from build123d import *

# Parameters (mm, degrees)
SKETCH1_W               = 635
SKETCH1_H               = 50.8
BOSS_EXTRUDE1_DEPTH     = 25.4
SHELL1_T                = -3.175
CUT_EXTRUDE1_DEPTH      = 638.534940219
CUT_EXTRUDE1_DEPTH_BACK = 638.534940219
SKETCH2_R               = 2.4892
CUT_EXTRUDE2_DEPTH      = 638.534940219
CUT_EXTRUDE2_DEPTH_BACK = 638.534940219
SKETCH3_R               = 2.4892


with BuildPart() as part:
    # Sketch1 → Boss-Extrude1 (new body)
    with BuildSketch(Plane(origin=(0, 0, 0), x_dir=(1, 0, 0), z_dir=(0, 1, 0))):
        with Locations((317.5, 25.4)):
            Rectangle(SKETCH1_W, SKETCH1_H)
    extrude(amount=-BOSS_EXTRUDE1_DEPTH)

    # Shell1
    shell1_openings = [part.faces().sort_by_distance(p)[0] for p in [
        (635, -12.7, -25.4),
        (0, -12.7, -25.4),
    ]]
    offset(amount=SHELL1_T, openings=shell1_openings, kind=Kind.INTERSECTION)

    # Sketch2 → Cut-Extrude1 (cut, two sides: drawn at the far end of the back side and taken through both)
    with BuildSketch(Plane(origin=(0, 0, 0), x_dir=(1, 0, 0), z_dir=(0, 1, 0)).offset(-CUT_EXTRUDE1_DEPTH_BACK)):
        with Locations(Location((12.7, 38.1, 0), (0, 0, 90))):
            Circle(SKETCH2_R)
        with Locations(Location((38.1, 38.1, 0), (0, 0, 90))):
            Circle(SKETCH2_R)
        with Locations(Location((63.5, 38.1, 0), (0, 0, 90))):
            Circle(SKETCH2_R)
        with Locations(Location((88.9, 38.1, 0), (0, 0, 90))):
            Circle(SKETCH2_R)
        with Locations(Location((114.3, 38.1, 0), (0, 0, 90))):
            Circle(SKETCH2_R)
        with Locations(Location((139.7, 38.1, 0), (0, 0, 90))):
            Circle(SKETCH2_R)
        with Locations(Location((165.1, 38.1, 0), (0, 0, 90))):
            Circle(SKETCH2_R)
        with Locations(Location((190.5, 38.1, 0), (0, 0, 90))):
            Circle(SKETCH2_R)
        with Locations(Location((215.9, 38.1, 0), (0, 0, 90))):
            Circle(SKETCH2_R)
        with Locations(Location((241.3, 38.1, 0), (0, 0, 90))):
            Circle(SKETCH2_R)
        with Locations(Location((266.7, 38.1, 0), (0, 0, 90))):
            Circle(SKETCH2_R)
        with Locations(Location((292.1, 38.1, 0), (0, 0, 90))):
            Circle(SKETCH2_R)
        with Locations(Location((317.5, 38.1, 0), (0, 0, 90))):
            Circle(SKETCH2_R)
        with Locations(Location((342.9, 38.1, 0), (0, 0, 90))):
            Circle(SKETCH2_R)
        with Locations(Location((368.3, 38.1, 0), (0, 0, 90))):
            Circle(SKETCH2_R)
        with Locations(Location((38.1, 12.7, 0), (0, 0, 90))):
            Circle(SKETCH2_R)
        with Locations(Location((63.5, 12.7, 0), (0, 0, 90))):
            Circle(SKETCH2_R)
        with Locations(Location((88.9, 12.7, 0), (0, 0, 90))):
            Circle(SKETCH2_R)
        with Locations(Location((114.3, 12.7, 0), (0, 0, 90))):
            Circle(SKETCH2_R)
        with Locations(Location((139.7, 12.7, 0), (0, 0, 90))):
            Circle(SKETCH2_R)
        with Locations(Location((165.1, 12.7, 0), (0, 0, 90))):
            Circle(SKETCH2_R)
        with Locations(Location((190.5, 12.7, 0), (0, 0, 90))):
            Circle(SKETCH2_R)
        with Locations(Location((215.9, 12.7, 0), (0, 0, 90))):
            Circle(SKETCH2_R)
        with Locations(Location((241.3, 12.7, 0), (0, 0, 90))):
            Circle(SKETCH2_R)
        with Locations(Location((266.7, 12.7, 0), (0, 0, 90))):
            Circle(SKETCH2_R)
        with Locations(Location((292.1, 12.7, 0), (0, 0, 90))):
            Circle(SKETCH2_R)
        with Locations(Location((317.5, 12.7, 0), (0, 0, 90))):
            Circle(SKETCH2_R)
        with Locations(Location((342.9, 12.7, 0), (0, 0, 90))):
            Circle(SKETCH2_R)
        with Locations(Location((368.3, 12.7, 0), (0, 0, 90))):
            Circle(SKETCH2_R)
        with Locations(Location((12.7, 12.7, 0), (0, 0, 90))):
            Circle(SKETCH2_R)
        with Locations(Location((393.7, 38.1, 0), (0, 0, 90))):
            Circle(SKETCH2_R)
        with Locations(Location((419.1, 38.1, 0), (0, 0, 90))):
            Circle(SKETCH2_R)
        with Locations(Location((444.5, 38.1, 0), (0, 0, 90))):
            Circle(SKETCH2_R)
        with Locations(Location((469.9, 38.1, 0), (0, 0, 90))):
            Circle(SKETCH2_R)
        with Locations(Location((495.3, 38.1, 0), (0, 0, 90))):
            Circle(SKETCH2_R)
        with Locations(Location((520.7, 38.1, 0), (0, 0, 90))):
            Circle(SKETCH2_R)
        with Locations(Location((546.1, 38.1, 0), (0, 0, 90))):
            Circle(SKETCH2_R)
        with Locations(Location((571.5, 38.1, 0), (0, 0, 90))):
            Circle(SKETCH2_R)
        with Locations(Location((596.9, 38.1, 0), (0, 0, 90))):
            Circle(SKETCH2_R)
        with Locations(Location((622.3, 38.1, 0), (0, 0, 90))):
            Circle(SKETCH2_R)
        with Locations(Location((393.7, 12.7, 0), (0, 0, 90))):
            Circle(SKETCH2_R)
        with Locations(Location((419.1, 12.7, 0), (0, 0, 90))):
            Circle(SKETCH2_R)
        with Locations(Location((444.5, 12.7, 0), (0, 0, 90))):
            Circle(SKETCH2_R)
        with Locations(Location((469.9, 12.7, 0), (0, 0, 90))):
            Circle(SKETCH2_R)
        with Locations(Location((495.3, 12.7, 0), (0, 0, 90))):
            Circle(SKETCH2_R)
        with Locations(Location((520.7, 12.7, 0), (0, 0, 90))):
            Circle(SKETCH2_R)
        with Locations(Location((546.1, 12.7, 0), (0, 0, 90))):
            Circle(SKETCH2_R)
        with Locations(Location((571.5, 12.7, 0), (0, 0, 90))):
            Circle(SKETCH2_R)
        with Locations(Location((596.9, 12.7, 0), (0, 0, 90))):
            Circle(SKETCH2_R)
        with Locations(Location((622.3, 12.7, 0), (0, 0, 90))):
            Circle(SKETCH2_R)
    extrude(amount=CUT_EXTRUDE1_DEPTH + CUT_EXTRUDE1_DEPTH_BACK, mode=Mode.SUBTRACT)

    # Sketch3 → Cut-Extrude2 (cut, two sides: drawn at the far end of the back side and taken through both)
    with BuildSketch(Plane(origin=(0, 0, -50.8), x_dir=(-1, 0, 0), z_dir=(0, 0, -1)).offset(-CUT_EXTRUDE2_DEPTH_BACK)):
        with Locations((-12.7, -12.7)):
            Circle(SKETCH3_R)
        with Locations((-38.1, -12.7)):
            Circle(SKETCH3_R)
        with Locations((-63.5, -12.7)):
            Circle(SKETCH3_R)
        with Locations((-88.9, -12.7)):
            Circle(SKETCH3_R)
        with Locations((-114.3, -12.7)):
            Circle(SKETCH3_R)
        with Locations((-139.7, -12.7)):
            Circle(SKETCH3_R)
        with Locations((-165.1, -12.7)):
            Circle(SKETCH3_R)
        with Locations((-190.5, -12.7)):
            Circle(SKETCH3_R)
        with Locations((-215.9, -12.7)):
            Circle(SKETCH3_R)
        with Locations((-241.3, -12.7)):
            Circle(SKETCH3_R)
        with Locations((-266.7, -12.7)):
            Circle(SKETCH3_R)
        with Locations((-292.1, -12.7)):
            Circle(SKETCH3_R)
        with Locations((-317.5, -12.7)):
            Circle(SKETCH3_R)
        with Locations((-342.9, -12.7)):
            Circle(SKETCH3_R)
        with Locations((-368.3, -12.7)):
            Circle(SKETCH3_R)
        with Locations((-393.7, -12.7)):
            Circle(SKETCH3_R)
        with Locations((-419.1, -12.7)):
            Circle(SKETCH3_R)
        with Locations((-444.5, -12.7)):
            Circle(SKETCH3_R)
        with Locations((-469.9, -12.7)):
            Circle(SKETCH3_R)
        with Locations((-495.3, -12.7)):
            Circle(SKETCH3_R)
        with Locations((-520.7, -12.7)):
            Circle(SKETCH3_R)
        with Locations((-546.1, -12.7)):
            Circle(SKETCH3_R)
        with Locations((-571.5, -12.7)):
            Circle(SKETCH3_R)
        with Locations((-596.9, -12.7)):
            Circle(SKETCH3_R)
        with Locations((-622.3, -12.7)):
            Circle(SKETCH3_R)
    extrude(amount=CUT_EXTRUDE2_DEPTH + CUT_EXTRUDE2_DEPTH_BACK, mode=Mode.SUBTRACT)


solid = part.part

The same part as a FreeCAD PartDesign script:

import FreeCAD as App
import Part
import Sketcher
from FreeCAD import Vector
Q = App.Units.Quantity


def faces_at(feature, points):
    """Names of the faces that lie closest to the given points."""
    faces = feature.Shape.Faces
    near = lambda p: min(range(len(faces)), key=lambda i: faces[i].distToShape(Part.Vertex(*p))[0])
    return sorted({f"Face{near(p) + 1}" for p in points})


def add_polygon(sketch, points):
    """Adds a closed chain of lines whose ends are joined by coincident constraints."""
    first, n = sketch.GeometryCount, len(points)
    for a, b in zip(points, points[1:] + points[:1]):
        sketch.addGeometry(Part.LineSegment(App.Vector(*a, 0), App.Vector(*b, 0)), False)
    for i in range(n):
        sketch.addConstraint(Sketcher.Constraint("Coincident", first + i, 2, first + (i + 1) % n, 1))

doc = App.newDocument("Part")
body = doc.addObject("PartDesign::Body", "Body")

# Sketch on XZ plane
sketch1 = body.newObject("Sketcher::SketchObject", "Sketch")
sketch1.AttachmentSupport = (doc.getObject("XZ_Plane"), [""])
sketch1.MapMode = "FlatFace"
add_polygon(sketch1, [(0, -51), (0, 0), (635, 0), (635, -51)])  # lines 0-3
sketch1.addConstraint([
    Sketcher.Constraint("Vertical", 0),
    Sketcher.Constraint("Horizontal", 1),
    Sketcher.Constraint("Vertical", 2),
    Sketcher.Constraint("Horizontal", 3),
    Sketcher.Constraint("Coincident", 0, 2, -1, 1),
    Sketcher.Constraint("DistanceX", 1, 1, 1, 2, Q("25 in")),
    Sketcher.Constraint("DistanceY", 0, 1, 0, 2, Q("2 in")),
])
pad1 = body.newObject("PartDesign::Pad", "Pad")
pad1.Profile = sketch1
pad1.Length = Q("1 in")
doc.recompute()

thickness = body.newObject("PartDesign::Thickness", "Thickness")
thickness.Base = (pad1, faces_at(pad1, [(635, -12.7, -25.4), (0, -12.7, -25.4)]))
thickness.Value = Q("0.125 in")
thickness.Reversed = True
thickness.Join = "Intersection"

# Sketch on XZ plane
sketch2 = body.newObject("Sketcher::SketchObject", "Sketch001")
sketch2.AttachmentSupport = (doc.getObject("XZ_Plane"), [""])
sketch2.MapMode = "FlatFace"
sketch2.addGeometry([
    Part.Circle(Vector(12.7, -38.1, 0), Vector(0, 0, 1), 2.5),  # 0
    Part.Circle(Vector(38.1, -38.1, 0), Vector(0, 0, 1), 2.5),  # 1
    Part.Circle(Vector(63.5, -38.1, 0), Vector(0, 0, 1), 2.5),  # 2
    Part.Circle(Vector(88.9, -38.1, 0), Vector(0, 0, 1), 2.5),  # 3
    Part.Circle(Vector(114.3, -38.1, 0), Vector(0, 0, 1), 2.5),  # 4
    Part.Circle(Vector(139.7, -38.1, 0), Vector(0, 0, 1), 2.5),  # 5
    Part.Circle(Vector(165.1, -38.1, 0), Vector(0, 0, 1), 2.5),  # 6
    Part.Circle(Vector(190.5, -38.1, 0), Vector(0, 0, 1), 2.5),  # 7
    Part.Circle(Vector(215.9, -38.1, 0), Vector(0, 0, 1), 2.5),  # 8
    Part.Circle(Vector(241.3, -38.1, 0), Vector(0, 0, 1), 2.5),  # 9
    Part.Circle(Vector(266.7, -38.1, 0), Vector(0, 0, 1), 2.5),  # 10
    Part.Circle(Vector(292.1, -38.1, 0), Vector(0, 0, 1), 2.5),  # 11
    Part.Circle(Vector(317.5, -38.1, 0), Vector(0, 0, 1), 2.5),  # 12
    Part.Circle(Vector(342.9, -38.1, 0), Vector(0, 0, 1), 2.5),  # 13
    Part.Circle(Vector(368.3, -38.1, 0), Vector(0, 0, 1), 2.5),  # 14
    Part.Circle(Vector(38.1, -12.7, 0), Vector(0, 0, 1), 2.5),  # 15
    Part.Circle(Vector(63.5, -12.7, 0), Vector(0, 0, 1), 2.5),  # 16
    Part.Circle(Vector(88.9, -12.7, 0), Vector(0, 0, 1), 2.5),  # 17
    Part.Circle(Vector(114.3, -12.7, 0), Vector(0, 0, 1), 2.5),  # 18
    Part.Circle(Vector(139.7, -12.7, 0), Vector(0, 0, 1), 2.5),  # 19
    Part.Circle(Vector(165.1, -12.7, 0), Vector(0, 0, 1), 2.5),  # 20
    Part.Circle(Vector(190.5, -12.7, 0), Vector(0, 0, 1), 2.5),  # 21
    Part.Circle(Vector(215.9, -12.7, 0), Vector(0, 0, 1), 2.5),  # 22
    Part.Circle(Vector(241.3, -12.7, 0), Vector(0, 0, 1), 2.5),  # 23
    Part.Circle(Vector(266.7, -12.7, 0), Vector(0, 0, 1), 2.5),  # 24
    Part.Circle(Vector(292.1, -12.7, 0), Vector(0, 0, 1), 2.5),  # 25
    Part.Circle(Vector(317.5, -12.7, 0), Vector(0, 0, 1), 2.5),  # 26
    Part.Circle(Vector(342.9, -12.7, 0), Vector(0, 0, 1), 2.5),  # 27
    Part.Circle(Vector(368.3, -12.7, 0), Vector(0, 0, 1), 2.5),  # 28
    Part.Circle(Vector(12.7, -12.7, 0), Vector(0, 0, 1), 2.5),  # 29
    Part.Circle(Vector(393.7, -38.1, 0), Vector(0, 0, 1), 2.5),  # 30
    Part.Circle(Vector(419.1, -38.1, 0), Vector(0, 0, 1), 2.5),  # 31
    Part.Circle(Vector(444.5, -38.1, 0), Vector(0, 0, 1), 2.5),  # 32
    Part.Circle(Vector(469.9, -38.1, 0), Vector(0, 0, 1), 2.5),  # 33
    Part.Circle(Vector(495.3, -38.1, 0), Vector(0, 0, 1), 2.5),  # 34
    Part.Circle(Vector(520.7, -38.1, 0), Vector(0, 0, 1), 2.5),  # 35
    Part.Circle(Vector(546.1, -38.1, 0), Vector(0, 0, 1), 2.5),  # 36
    Part.Circle(Vector(571.5, -38.1, 0), Vector(0, 0, 1), 2.5),  # 37
    Part.Circle(Vector(596.9, -38.1, 0), Vector(0, 0, 1), 2.5),  # 38
    Part.Circle(Vector(622.3, -38.1, 0), Vector(0, 0, 1), 2.5),  # 39
    Part.Circle(Vector(393.7, -12.7, 0), Vector(0, 0, 1), 2.5),  # 40
    Part.Circle(Vector(419.1, -12.7, 0), Vector(0, 0, 1), 2.5),  # 41
    Part.Circle(Vector(444.5, -12.7, 0), Vector(0, 0, 1), 2.5),  # 42
    Part.Circle(Vector(469.9, -12.7, 0), Vector(0, 0, 1), 2.5),  # 43
    Part.Circle(Vector(495.3, -12.7, 0), Vector(0, 0, 1), 2.5),  # 44
    Part.Circle(Vector(520.7, -12.7, 0), Vector(0, 0, 1), 2.5),  # 45
    Part.Circle(Vector(546.1, -12.7, 0), Vector(0, 0, 1), 2.5),  # 46
    Part.Circle(Vector(571.5, -12.7, 0), Vector(0, 0, 1), 2.5),  # 47
    Part.Circle(Vector(596.9, -12.7, 0), Vector(0, 0, 1), 2.5),  # 48
    Part.Circle(Vector(622.3, -12.7, 0), Vector(0, 0, 1), 2.5),  # 49
], False)
sketch2.addConstraint([
    Sketcher.Constraint("Equal", 0, 1),
    Sketcher.Constraint("Equal", 1, 2),
    Sketcher.Constraint("Equal", 2, 3),
    Sketcher.Constraint("Equal", 3, 4),
    Sketcher.Constraint("Equal", 4, 5),
    Sketcher.Constraint("Equal", 5, 6),
    Sketcher.Constraint("Equal", 6, 7),
    Sketcher.Constraint("Equal", 7, 8),
    Sketcher.Constraint("Equal", 8, 9),
    Sketcher.Constraint("Equal", 9, 10),
    Sketcher.Constraint("Equal", 10, 11),
    Sketcher.Constraint("Equal", 11, 12),
    Sketcher.Constraint("Equal", 12, 13),
    Sketcher.Constraint("Equal", 13, 14),
    Sketcher.Constraint("Equal", 14, 15),
    Sketcher.Constraint("Equal", 15, 16),
    Sketcher.Constraint("Equal", 16, 17),
    Sketcher.Constraint("Equal", 17, 18),
    Sketcher.Constraint("Equal", 18, 19),
    Sketcher.Constraint("Equal", 19, 20),
    Sketcher.Constraint("Equal", 20, 21),
    Sketcher.Constraint("Equal", 21, 22),
    Sketcher.Constraint("Equal", 22, 23),
    Sketcher.Constraint("Equal", 23, 24),
    Sketcher.Constraint("Equal", 24, 25),
    Sketcher.Constraint("Equal", 25, 26),
    Sketcher.Constraint("Equal", 26, 27),
    Sketcher.Constraint("Equal", 27, 28),
    Sketcher.Constraint("Equal", 28, 29),
    Sketcher.Constraint("Equal", 29, 30),
    Sketcher.Constraint("Equal", 30, 31),
    Sketcher.Constraint("Equal", 31, 32),
    Sketcher.Constraint("Equal", 32, 33),
    Sketcher.Constraint("Equal", 33, 34),
    Sketcher.Constraint("Equal", 34, 35),
    Sketcher.Constraint("Equal", 35, 36),
    Sketcher.Constraint("Equal", 36, 37),
    Sketcher.Constraint("Equal", 37, 38),
    Sketcher.Constraint("Equal", 38, 39),
    Sketcher.Constraint("Equal", 39, 40),
    Sketcher.Constraint("Equal", 40, 41),
    Sketcher.Constraint("Equal", 41, 42),
    Sketcher.Constraint("Equal", 42, 43),
    Sketcher.Constraint("Equal", 43, 44),
    Sketcher.Constraint("Equal", 44, 45),
    Sketcher.Constraint("Equal", 45, 46),
    Sketcher.Constraint("Equal", 46, 47),
    Sketcher.Constraint("Equal", 47, 48),
    Sketcher.Constraint("Equal", 48, 49),
    Sketcher.Constraint("Horizontal", 0, 3, 1, 3),
    Sketcher.Constraint("Horizontal", 1, 3, 2, 3),
    Sketcher.Constraint("Horizontal", 2, 3, 3, 3),
    Sketcher.Constraint("Horizontal", 3, 3, 4, 3),
    Sketcher.Constraint("Horizontal", 4, 3, 5, 3),
    Sketcher.Constraint("Horizontal", 5, 3, 6, 3),
    Sketcher.Constraint("Horizontal", 6, 3, 7, 3),
    Sketcher.Constraint("Horizontal", 7, 3, 8, 3),
    Sketcher.Constraint("Horizontal", 8, 3, 9, 3),
    Sketcher.Constraint("Horizontal", 9, 3, 10, 3),
    Sketcher.Constraint("Horizontal", 10, 3, 11, 3),
    Sketcher.Constraint("Horizontal", 11, 3, 12, 3),
    Sketcher.Constraint("Horizontal", 12, 3, 13, 3),
    Sketcher.Constraint("Horizontal", 13, 3, 14, 3),
    Sketcher.Constraint("Horizontal", 15, 3, 16, 3),
    Sketcher.Constraint("Horizontal", 16, 3, 17, 3),
    Sketcher.Constraint("Horizontal", 17, 3, 18, 3),
    Sketcher.Constraint("Horizontal", 18, 3, 19, 3),
    Sketcher.Constraint("Horizontal", 19, 3, 20, 3),
    Sketcher.Constraint("Horizontal", 20, 3, 21, 3),
    Sketcher.Constraint("Horizontal", 21, 3, 22, 3),
    Sketcher.Constraint("Horizontal", 22, 3, 23, 3),
    Sketcher.Constraint("Horizontal", 23, 3, 24, 3),
    Sketcher.Constraint("Horizontal", 24, 3, 25, 3),
    Sketcher.Constraint("Horizontal", 25, 3, 26, 3),
    Sketcher.Constraint("Horizontal", 26, 3, 27, 3),
    Sketcher.Constraint("Horizontal", 27, 3, 28, 3),
    Sketcher.Constraint("Horizontal", 28, 3, 29, 3),
    Sketcher.Constraint("Horizontal", 14, 3, 30, 3),
    Sketcher.Constraint("Horizontal", 30, 3, 31, 3),
    Sketcher.Constraint("Horizontal", 31, 3, 32, 3),
    Sketcher.Constraint("Horizontal", 32, 3, 33, 3),
    Sketcher.Constraint("Horizontal", 33, 3, 34, 3),
    Sketcher.Constraint("Horizontal", 34, 3, 35, 3),
    Sketcher.Constraint("Horizontal", 35, 3, 36, 3),
    Sketcher.Constraint("Horizontal", 36, 3, 37, 3),
    Sketcher.Constraint("Horizontal", 37, 3, 38, 3),
    Sketcher.Constraint("Horizontal", 38, 3, 39, 3),
    Sketcher.Constraint("Horizontal", 29, 3, 40, 3),
    Sketcher.Constraint("Horizontal", 40, 3, 41, 3),
    Sketcher.Constraint("Horizontal", 41, 3, 42, 3),
    Sketcher.Constraint("Horizontal", 42, 3, 43, 3),
    Sketcher.Constraint("Horizontal", 43, 3, 44, 3),
    Sketcher.Constraint("Horizontal", 44, 3, 45, 3),
    Sketcher.Constraint("Horizontal", 45, 3, 46, 3),
    Sketcher.Constraint("Horizontal", 46, 3, 47, 3),
    Sketcher.Constraint("Horizontal", 47, 3, 48, 3),
    Sketcher.Constraint("Horizontal", 48, 3, 49, 3),
    Sketcher.Constraint("Vertical", 1, 3, 15, 3),
    Sketcher.Constraint("Vertical", 2, 3, 16, 3),
    Sketcher.Constraint("Vertical", 3, 3, 17, 3),
    Sketcher.Constraint("Vertical", 4, 3, 18, 3),
    Sketcher.Constraint("Vertical", 5, 3, 19, 3),
    Sketcher.Constraint("Vertical", 6, 3, 20, 3),
    Sketcher.Constraint("Vertical", 7, 3, 21, 3),
    Sketcher.Constraint("Vertical", 8, 3, 22, 3),
    Sketcher.Constraint("Vertical", 9, 3, 23, 3),
    Sketcher.Constraint("Vertical", 10, 3, 24, 3),
    Sketcher.Constraint("Vertical", 11, 3, 25, 3),
    Sketcher.Constraint("Vertical", 12, 3, 26, 3),
    Sketcher.Constraint("Vertical", 13, 3, 27, 3),
    Sketcher.Constraint("Vertical", 14, 3, 28, 3),
    Sketcher.Constraint("Vertical", 0, 3, 29, 3),
    Sketcher.Constraint("Vertical", 30, 3, 40, 3),
    Sketcher.Constraint("Vertical", 31, 3, 41, 3),
    Sketcher.Constraint("Vertical", 32, 3, 42, 3),
    Sketcher.Constraint("Vertical", 33, 3, 43, 3),
    Sketcher.Constraint("Vertical", 34, 3, 44, 3),
    Sketcher.Constraint("Vertical", 35, 3, 45, 3),
    Sketcher.Constraint("Vertical", 36, 3, 46, 3),
    Sketcher.Constraint("Vertical", 37, 3, 47, 3),
    Sketcher.Constraint("Vertical", 38, 3, 48, 3),
    Sketcher.Constraint("Vertical", 39, 3, 49, 3),
    Sketcher.Constraint("Diameter", 0, Q("0.196 in")),
    Sketcher.Constraint("DistanceX", 0, 3, 1, 3, Q("1 in")),
    Sketcher.Constraint("DistanceX", 1, 3, 2, 3, Q("1 in")),
    Sketcher.Constraint("DistanceX", 2, 3, 3, 3, Q("1 in")),
    Sketcher.Constraint("DistanceX", 3, 3, 4, 3, Q("1 in")),
    Sketcher.Constraint("DistanceX", 4, 3, 5, 3, Q("1 in")),
    Sketcher.Constraint("DistanceX", 5, 3, 6, 3, Q("1 in")),
    Sketcher.Constraint("DistanceX", 6, 3, 7, 3, Q("1 in")),
    Sketcher.Constraint("DistanceX", 7, 3, 8, 3, Q("1 in")),
    Sketcher.Constraint("DistanceX", 8, 3, 9, 3, Q("1 in")),
    Sketcher.Constraint("DistanceX", 9, 3, 10, 3, Q("1 in")),
    Sketcher.Constraint("DistanceX", 10, 3, 11, 3, Q("1 in")),
    Sketcher.Constraint("DistanceX", 11, 3, 12, 3, Q("1 in")),
    Sketcher.Constraint("DistanceX", 12, 3, 13, 3, Q("1 in")),
    Sketcher.Constraint("DistanceX", 13, 3, 14, 3, Q("1 in")),
    Sketcher.Constraint("DistanceY", 1, 3, 15, 3, Q("1 in")),
    Sketcher.Constraint("DistanceX", 14, 3, 30, 3, Q("1 in")),
    Sketcher.Constraint("DistanceX", 30, 3, 31, 3, Q("1 in")),
    Sketcher.Constraint("DistanceX", 31, 3, 32, 3, Q("1 in")),
    Sketcher.Constraint("DistanceX", 32, 3, 33, 3, Q("1 in")),
    Sketcher.Constraint("DistanceX", 33, 3, 34, 3, Q("1 in")),
    Sketcher.Constraint("DistanceX", 34, 3, 35, 3, Q("1 in")),
    Sketcher.Constraint("DistanceX", 35, 3, 36, 3, Q("1 in")),
    Sketcher.Constraint("DistanceX", 36, 3, 37, 3, Q("1 in")),
    Sketcher.Constraint("DistanceX", 37, 3, 38, 3, Q("1 in")),
    Sketcher.Constraint("DistanceX", 38, 3, 39, 3, Q("1 in")),
    Sketcher.Constraint("DistanceX", -1, 1, 0, 3, Q("0.5 in")),
    Sketcher.Constraint("DistanceY", 0, 3, -1, 1, Q("1.5 in")),
])
pocket1 = body.newObject("PartDesign::Pocket", "Pocket")
pocket1.Profile = sketch2
pocket1.Type = "ThroughAll"
pocket1.Midplane = True

# Sketch on XY plane
sketch3 = body.newObject("Sketcher::SketchObject", "Sketch002")
sketch3.AttachmentSupport = (doc.getObject("XY_Plane"), [""])
sketch3.MapMode = "FlatFace"
sketch3.AttachmentOffset = App.Placement(Vector(0, 0, -2 * 25.4), App.Rotation())
sketch3.addGeometry([
    Part.Circle(Vector(12.7, -12.7, 0), Vector(0, 0, 1), 2.5),  # 0
    Part.Circle(Vector(38.1, -12.7, 0), Vector(0, 0, 1), 2.5),  # 1
    Part.Circle(Vector(63.5, -12.7, 0), Vector(0, 0, 1), 2.5),  # 2
    Part.Circle(Vector(88.9, -12.7, 0), Vector(0, 0, 1), 2.5),  # 3
    Part.Circle(Vector(114.3, -12.7, 0), Vector(0, 0, 1), 2.5),  # 4
    Part.Circle(Vector(139.7, -12.7, 0), Vector(0, 0, 1), 2.5),  # 5
    Part.Circle(Vector(165.1, -12.7, 0), Vector(0, 0, 1), 2.5),  # 6
    Part.Circle(Vector(190.5, -12.7, 0), Vector(0, 0, 1), 2.5),  # 7
    Part.Circle(Vector(215.9, -12.7, 0), Vector(0, 0, 1), 2.5),  # 8
    Part.Circle(Vector(241.3, -12.7, 0), Vector(0, 0, 1), 2.5),  # 9
    Part.Circle(Vector(266.7, -12.7, 0), Vector(0, 0, 1), 2.5),  # 10
    Part.Circle(Vector(292.1, -12.7, 0), Vector(0, 0, 1), 2.5),  # 11
    Part.Circle(Vector(317.5, -12.7, 0), Vector(0, 0, 1), 2.5),  # 12
    Part.Circle(Vector(342.9, -12.7, 0), Vector(0, 0, 1), 2.5),  # 13
    Part.Circle(Vector(368.3, -12.7, 0), Vector(0, 0, 1), 2.5),  # 14
    Part.Circle(Vector(393.7, -12.7, 0), Vector(0, 0, 1), 2.5),  # 15
    Part.Circle(Vector(419.1, -12.7, 0), Vector(0, 0, 1), 2.5),  # 16
    Part.Circle(Vector(444.5, -12.7, 0), Vector(0, 0, 1), 2.5),  # 17
    Part.Circle(Vector(469.9, -12.7, 0), Vector(0, 0, 1), 2.5),  # 18
    Part.Circle(Vector(495.3, -12.7, 0), Vector(0, 0, 1), 2.5),  # 19
    Part.Circle(Vector(520.7, -12.7, 0), Vector(0, 0, 1), 2.5),  # 20
    Part.Circle(Vector(546.1, -12.7, 0), Vector(0, 0, 1), 2.5),  # 21
    Part.Circle(Vector(571.5, -12.7, 0), Vector(0, 0, 1), 2.5),  # 22
    Part.Circle(Vector(596.9, -12.7, 0), Vector(0, 0, 1), 2.5),  # 23
    Part.Circle(Vector(622.3, -12.7, 0), Vector(0, 0, 1), 2.5),  # 24
], False)
sketch3.addConstraint([
    Sketcher.Constraint("Equal", 0, 1),
    Sketcher.Constraint("Equal", 1, 2),
    Sketcher.Constraint("Equal", 2, 3),
    Sketcher.Constraint("Equal", 3, 4),
    Sketcher.Constraint("Equal", 4, 5),
    Sketcher.Constraint("Equal", 5, 6),
    Sketcher.Constraint("Equal", 6, 7),
    Sketcher.Constraint("Equal", 7, 8),
    Sketcher.Constraint("Equal", 8, 9),
    Sketcher.Constraint("Equal", 9, 10),
    Sketcher.Constraint("Equal", 10, 11),
    Sketcher.Constraint("Equal", 11, 12),
    Sketcher.Constraint("Equal", 12, 13),
    Sketcher.Constraint("Equal", 13, 14),
    Sketcher.Constraint("Equal", 14, 15),
    Sketcher.Constraint("Equal", 15, 16),
    Sketcher.Constraint("Equal", 16, 17),
    Sketcher.Constraint("Equal", 17, 18),
    Sketcher.Constraint("Equal", 18, 19),
    Sketcher.Constraint("Equal", 19, 20),
    Sketcher.Constraint("Equal", 20, 21),
    Sketcher.Constraint("Equal", 21, 22),
    Sketcher.Constraint("Equal", 22, 23),
    Sketcher.Constraint("Equal", 23, 24),
    Sketcher.Constraint("Horizontal", 0, 3, 1, 3),
    Sketcher.Constraint("Horizontal", 1, 3, 2, 3),
    Sketcher.Constraint("Horizontal", 2, 3, 3, 3),
    Sketcher.Constraint("Horizontal", 3, 3, 4, 3),
    Sketcher.Constraint("Horizontal", 4, 3, 5, 3),
    Sketcher.Constraint("Horizontal", 5, 3, 6, 3),
    Sketcher.Constraint("Horizontal", 6, 3, 7, 3),
    Sketcher.Constraint("Horizontal", 7, 3, 8, 3),
    Sketcher.Constraint("Horizontal", 8, 3, 9, 3),
    Sketcher.Constraint("Horizontal", 9, 3, 10, 3),
    Sketcher.Constraint("Horizontal", 10, 3, 11, 3),
    Sketcher.Constraint("Horizontal", 11, 3, 12, 3),
    Sketcher.Constraint("Horizontal", 12, 3, 13, 3),
    Sketcher.Constraint("Horizontal", 13, 3, 14, 3),
    Sketcher.Constraint("Horizontal", 14, 3, 15, 3),
    Sketcher.Constraint("Horizontal", 15, 3, 16, 3),
    Sketcher.Constraint("Horizontal", 16, 3, 17, 3),
    Sketcher.Constraint("Horizontal", 17, 3, 18, 3),
    Sketcher.Constraint("Horizontal", 18, 3, 19, 3),
    Sketcher.Constraint("Horizontal", 19, 3, 20, 3),
    Sketcher.Constraint("Horizontal", 20, 3, 21, 3),
    Sketcher.Constraint("Horizontal", 21, 3, 22, 3),
    Sketcher.Constraint("Horizontal", 22, 3, 23, 3),
    Sketcher.Constraint("Horizontal", 23, 3, 24, 3),
    Sketcher.Constraint("Diameter", 0, Q("0.196 in")),
    Sketcher.Constraint("DistanceX", 0, 3, 1, 3, Q("1 in")),
    Sketcher.Constraint("DistanceX", 1, 3, 2, 3, Q("1 in")),
    Sketcher.Constraint("DistanceX", 2, 3, 3, 3, Q("1 in")),
    Sketcher.Constraint("DistanceX", 3, 3, 4, 3, Q("1 in")),
    Sketcher.Constraint("DistanceX", 4, 3, 5, 3, Q("1 in")),
    Sketcher.Constraint("DistanceX", 5, 3, 6, 3, Q("1 in")),
    Sketcher.Constraint("DistanceX", 6, 3, 7, 3, Q("1 in")),
    Sketcher.Constraint("DistanceX", 7, 3, 8, 3, Q("1 in")),
    Sketcher.Constraint("DistanceX", 8, 3, 9, 3, Q("1 in")),
    Sketcher.Constraint("DistanceX", 9, 3, 10, 3, Q("1 in")),
    Sketcher.Constraint("DistanceX", 10, 3, 11, 3, Q("1 in")),
    Sketcher.Constraint("DistanceX", 11, 3, 12, 3, Q("1 in")),
    Sketcher.Constraint("DistanceX", 12, 3, 13, 3, Q("1 in")),
    Sketcher.Constraint("DistanceX", 13, 3, 14, 3, Q("1 in")),
    Sketcher.Constraint("DistanceX", 14, 3, 15, 3, Q("1 in")),
    Sketcher.Constraint("DistanceX", 15, 3, 16, 3, Q("1 in")),
    Sketcher.Constraint("DistanceX", 16, 3, 17, 3, Q("1 in")),
    Sketcher.Constraint("DistanceX", 17, 3, 18, 3, Q("1 in")),
    Sketcher.Constraint("DistanceX", 18, 3, 19, 3, Q("1 in")),
    Sketcher.Constraint("DistanceX", 19, 3, 20, 3, Q("1 in")),
    Sketcher.Constraint("DistanceX", 20, 3, 21, 3, Q("1 in")),
    Sketcher.Constraint("DistanceX", 21, 3, 22, 3, Q("1 in")),
    Sketcher.Constraint("DistanceX", 22, 3, 23, 3, Q("1 in")),
    Sketcher.Constraint("DistanceX", 23, 3, 24, 3, Q("1 in")),
    Sketcher.Constraint("DistanceX", -1, 1, 0, 3, Q("0.5 in")),
    Sketcher.Constraint("DistanceY", 0, 3, -1, 1, Q("0.5 in")),
])
pocket2 = body.newObject("PartDesign::Pocket", "Pocket001")
pocket2.Profile = sketch3
pocket2.Type = "ThroughAll"
pocket2.Midplane = True

doc.recompute()
